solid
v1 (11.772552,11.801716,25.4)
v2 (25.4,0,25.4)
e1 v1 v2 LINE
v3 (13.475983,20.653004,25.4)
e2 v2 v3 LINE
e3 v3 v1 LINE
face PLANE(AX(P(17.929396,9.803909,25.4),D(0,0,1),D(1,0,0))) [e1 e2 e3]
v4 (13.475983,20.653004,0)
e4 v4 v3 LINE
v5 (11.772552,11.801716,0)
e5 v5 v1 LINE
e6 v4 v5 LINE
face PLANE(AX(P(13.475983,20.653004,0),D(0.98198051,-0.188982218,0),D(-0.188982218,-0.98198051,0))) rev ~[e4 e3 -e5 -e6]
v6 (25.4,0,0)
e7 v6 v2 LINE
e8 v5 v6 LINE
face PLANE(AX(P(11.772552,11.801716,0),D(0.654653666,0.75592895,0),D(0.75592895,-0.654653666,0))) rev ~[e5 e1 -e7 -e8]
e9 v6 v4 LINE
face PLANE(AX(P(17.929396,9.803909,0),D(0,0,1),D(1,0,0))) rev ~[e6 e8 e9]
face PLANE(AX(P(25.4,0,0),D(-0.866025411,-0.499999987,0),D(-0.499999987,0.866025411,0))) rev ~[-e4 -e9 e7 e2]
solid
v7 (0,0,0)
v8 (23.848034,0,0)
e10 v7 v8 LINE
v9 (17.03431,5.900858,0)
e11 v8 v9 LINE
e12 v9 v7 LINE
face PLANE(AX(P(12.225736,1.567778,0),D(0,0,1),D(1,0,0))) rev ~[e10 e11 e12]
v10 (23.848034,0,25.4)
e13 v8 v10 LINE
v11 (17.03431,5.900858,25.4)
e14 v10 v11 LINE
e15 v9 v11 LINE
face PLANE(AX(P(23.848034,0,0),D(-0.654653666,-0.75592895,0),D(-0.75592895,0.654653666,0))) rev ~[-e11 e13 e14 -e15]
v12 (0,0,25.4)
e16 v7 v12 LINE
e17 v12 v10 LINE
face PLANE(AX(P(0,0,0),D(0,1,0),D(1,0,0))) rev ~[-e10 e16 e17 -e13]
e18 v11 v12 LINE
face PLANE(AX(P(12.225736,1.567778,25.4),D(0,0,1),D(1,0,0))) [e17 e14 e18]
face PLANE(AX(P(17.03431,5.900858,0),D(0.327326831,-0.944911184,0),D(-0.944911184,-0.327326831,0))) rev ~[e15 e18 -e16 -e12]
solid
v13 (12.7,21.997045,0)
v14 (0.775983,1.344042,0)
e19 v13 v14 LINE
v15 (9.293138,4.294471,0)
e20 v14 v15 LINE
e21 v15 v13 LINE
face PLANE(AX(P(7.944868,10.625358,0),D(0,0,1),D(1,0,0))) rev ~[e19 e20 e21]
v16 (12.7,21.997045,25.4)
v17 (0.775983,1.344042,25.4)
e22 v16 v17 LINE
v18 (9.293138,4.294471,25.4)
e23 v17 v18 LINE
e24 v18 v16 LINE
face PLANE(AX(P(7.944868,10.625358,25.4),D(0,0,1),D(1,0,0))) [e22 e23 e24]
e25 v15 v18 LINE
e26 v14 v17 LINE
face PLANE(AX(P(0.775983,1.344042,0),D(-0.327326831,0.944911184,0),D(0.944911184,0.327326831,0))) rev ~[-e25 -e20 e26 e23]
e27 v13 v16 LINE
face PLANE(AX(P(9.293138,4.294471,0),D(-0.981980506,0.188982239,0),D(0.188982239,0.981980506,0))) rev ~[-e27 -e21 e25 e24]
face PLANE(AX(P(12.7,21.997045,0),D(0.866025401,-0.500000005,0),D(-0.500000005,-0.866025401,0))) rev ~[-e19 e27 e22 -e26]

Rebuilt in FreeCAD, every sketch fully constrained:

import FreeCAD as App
import Part
import Sketcher
from FreeCAD import Vector
Q = App.Units.Quantity


def add_polygon(sketch, points):
    """Adds a closed chain of lines whose ends are joined by coincident constraints."""
    first, n = sketch.GeometryCount, len(points)
    for a, b in zip(points, points[1:] + points[:1]):
        sketch.addGeometry(Part.LineSegment(App.Vector(*a, 0), App.Vector(*b, 0)), False)
    for i in range(n):
        sketch.addConstraint(Sketcher.Constraint("Coincident", first + i, 2, first + (i + 1) % n, 1))

doc = App.newDocument("Part")
params = doc.addObject("Spreadsheet::Sheet", "Params")
for row, (alias, value) in enumerate([
    ("pad1_length", "1 in"),
], start=1):
    params.set(f"A{row}", alias)
    params.set(f"B{row}", "=" + value)
    params.setAlias(f"B{row}", alias)

body = doc.addObject("PartDesign::Body", "Body")
body.AllowCompound = True

# Sketch on XY plane
sketch1 = body.newObject("Sketcher::SketchObject", "Sketch")
sketch1.AttachmentSupport = (doc.getObject("XY_Plane"), [""])
sketch1.MapMode = "FlatFace"
add_polygon(sketch1, [(13, 22), (1, 1), (9, 4)])  # lines 0-2
add_polygon(sketch1, [(25, 0), (13, 21), (12, 12)])  # lines 3-5
add_polygon(sketch1, [(0, 0), (24, 0), (17, 6)])  # lines 6-8
sketch1.addConstraint([
    Sketcher.Constraint("Horizontal", 6),
    Sketcher.Constraint("Coincident", 8, 2, -1, 1),
    Sketcher.Constraint("PointOnObject", 5, 2, -1),
    Sketcher.Constraint("Parallel", 2, 4),
    Sketcher.Constraint("Parallel", 5, 7),
    Sketcher.Constraint("Parallel", 1, 8),
    Sketcher.Constraint("Equal", 0, 3),
    Sketcher.Constraint("Equal", 1, 4),
    Sketcher.Constraint("Equal", 2, 5),
    Sketcher.Constraint("Equal", 4, 7),
    Sketcher.Constraint("Equal", 5, 8),
    Sketcher.Constraint("DistanceX", -1, 1, 5, 2, Q("1 in")),
    Sketcher.Constraint("Angle", 0, Q("-120 deg")),
    Sketcher.Constraint("DistanceX", -1, 1, 2, 2, Q("0.5 in")),
    Sketcher.Constraint("Distance", 1, 9.01371),
    Sketcher.Constraint("Distance", 2, 18.027419),
    Sketcher.Constraint("DistanceY", -1, 1, 1, 2, 4.294471),
])
pad1 = body.newObject("PartDesign::Pad", "Pad")
pad1.Profile = sketch1
pad1.setExpression("Length", "Params.pad1_length")

doc.recompute()
